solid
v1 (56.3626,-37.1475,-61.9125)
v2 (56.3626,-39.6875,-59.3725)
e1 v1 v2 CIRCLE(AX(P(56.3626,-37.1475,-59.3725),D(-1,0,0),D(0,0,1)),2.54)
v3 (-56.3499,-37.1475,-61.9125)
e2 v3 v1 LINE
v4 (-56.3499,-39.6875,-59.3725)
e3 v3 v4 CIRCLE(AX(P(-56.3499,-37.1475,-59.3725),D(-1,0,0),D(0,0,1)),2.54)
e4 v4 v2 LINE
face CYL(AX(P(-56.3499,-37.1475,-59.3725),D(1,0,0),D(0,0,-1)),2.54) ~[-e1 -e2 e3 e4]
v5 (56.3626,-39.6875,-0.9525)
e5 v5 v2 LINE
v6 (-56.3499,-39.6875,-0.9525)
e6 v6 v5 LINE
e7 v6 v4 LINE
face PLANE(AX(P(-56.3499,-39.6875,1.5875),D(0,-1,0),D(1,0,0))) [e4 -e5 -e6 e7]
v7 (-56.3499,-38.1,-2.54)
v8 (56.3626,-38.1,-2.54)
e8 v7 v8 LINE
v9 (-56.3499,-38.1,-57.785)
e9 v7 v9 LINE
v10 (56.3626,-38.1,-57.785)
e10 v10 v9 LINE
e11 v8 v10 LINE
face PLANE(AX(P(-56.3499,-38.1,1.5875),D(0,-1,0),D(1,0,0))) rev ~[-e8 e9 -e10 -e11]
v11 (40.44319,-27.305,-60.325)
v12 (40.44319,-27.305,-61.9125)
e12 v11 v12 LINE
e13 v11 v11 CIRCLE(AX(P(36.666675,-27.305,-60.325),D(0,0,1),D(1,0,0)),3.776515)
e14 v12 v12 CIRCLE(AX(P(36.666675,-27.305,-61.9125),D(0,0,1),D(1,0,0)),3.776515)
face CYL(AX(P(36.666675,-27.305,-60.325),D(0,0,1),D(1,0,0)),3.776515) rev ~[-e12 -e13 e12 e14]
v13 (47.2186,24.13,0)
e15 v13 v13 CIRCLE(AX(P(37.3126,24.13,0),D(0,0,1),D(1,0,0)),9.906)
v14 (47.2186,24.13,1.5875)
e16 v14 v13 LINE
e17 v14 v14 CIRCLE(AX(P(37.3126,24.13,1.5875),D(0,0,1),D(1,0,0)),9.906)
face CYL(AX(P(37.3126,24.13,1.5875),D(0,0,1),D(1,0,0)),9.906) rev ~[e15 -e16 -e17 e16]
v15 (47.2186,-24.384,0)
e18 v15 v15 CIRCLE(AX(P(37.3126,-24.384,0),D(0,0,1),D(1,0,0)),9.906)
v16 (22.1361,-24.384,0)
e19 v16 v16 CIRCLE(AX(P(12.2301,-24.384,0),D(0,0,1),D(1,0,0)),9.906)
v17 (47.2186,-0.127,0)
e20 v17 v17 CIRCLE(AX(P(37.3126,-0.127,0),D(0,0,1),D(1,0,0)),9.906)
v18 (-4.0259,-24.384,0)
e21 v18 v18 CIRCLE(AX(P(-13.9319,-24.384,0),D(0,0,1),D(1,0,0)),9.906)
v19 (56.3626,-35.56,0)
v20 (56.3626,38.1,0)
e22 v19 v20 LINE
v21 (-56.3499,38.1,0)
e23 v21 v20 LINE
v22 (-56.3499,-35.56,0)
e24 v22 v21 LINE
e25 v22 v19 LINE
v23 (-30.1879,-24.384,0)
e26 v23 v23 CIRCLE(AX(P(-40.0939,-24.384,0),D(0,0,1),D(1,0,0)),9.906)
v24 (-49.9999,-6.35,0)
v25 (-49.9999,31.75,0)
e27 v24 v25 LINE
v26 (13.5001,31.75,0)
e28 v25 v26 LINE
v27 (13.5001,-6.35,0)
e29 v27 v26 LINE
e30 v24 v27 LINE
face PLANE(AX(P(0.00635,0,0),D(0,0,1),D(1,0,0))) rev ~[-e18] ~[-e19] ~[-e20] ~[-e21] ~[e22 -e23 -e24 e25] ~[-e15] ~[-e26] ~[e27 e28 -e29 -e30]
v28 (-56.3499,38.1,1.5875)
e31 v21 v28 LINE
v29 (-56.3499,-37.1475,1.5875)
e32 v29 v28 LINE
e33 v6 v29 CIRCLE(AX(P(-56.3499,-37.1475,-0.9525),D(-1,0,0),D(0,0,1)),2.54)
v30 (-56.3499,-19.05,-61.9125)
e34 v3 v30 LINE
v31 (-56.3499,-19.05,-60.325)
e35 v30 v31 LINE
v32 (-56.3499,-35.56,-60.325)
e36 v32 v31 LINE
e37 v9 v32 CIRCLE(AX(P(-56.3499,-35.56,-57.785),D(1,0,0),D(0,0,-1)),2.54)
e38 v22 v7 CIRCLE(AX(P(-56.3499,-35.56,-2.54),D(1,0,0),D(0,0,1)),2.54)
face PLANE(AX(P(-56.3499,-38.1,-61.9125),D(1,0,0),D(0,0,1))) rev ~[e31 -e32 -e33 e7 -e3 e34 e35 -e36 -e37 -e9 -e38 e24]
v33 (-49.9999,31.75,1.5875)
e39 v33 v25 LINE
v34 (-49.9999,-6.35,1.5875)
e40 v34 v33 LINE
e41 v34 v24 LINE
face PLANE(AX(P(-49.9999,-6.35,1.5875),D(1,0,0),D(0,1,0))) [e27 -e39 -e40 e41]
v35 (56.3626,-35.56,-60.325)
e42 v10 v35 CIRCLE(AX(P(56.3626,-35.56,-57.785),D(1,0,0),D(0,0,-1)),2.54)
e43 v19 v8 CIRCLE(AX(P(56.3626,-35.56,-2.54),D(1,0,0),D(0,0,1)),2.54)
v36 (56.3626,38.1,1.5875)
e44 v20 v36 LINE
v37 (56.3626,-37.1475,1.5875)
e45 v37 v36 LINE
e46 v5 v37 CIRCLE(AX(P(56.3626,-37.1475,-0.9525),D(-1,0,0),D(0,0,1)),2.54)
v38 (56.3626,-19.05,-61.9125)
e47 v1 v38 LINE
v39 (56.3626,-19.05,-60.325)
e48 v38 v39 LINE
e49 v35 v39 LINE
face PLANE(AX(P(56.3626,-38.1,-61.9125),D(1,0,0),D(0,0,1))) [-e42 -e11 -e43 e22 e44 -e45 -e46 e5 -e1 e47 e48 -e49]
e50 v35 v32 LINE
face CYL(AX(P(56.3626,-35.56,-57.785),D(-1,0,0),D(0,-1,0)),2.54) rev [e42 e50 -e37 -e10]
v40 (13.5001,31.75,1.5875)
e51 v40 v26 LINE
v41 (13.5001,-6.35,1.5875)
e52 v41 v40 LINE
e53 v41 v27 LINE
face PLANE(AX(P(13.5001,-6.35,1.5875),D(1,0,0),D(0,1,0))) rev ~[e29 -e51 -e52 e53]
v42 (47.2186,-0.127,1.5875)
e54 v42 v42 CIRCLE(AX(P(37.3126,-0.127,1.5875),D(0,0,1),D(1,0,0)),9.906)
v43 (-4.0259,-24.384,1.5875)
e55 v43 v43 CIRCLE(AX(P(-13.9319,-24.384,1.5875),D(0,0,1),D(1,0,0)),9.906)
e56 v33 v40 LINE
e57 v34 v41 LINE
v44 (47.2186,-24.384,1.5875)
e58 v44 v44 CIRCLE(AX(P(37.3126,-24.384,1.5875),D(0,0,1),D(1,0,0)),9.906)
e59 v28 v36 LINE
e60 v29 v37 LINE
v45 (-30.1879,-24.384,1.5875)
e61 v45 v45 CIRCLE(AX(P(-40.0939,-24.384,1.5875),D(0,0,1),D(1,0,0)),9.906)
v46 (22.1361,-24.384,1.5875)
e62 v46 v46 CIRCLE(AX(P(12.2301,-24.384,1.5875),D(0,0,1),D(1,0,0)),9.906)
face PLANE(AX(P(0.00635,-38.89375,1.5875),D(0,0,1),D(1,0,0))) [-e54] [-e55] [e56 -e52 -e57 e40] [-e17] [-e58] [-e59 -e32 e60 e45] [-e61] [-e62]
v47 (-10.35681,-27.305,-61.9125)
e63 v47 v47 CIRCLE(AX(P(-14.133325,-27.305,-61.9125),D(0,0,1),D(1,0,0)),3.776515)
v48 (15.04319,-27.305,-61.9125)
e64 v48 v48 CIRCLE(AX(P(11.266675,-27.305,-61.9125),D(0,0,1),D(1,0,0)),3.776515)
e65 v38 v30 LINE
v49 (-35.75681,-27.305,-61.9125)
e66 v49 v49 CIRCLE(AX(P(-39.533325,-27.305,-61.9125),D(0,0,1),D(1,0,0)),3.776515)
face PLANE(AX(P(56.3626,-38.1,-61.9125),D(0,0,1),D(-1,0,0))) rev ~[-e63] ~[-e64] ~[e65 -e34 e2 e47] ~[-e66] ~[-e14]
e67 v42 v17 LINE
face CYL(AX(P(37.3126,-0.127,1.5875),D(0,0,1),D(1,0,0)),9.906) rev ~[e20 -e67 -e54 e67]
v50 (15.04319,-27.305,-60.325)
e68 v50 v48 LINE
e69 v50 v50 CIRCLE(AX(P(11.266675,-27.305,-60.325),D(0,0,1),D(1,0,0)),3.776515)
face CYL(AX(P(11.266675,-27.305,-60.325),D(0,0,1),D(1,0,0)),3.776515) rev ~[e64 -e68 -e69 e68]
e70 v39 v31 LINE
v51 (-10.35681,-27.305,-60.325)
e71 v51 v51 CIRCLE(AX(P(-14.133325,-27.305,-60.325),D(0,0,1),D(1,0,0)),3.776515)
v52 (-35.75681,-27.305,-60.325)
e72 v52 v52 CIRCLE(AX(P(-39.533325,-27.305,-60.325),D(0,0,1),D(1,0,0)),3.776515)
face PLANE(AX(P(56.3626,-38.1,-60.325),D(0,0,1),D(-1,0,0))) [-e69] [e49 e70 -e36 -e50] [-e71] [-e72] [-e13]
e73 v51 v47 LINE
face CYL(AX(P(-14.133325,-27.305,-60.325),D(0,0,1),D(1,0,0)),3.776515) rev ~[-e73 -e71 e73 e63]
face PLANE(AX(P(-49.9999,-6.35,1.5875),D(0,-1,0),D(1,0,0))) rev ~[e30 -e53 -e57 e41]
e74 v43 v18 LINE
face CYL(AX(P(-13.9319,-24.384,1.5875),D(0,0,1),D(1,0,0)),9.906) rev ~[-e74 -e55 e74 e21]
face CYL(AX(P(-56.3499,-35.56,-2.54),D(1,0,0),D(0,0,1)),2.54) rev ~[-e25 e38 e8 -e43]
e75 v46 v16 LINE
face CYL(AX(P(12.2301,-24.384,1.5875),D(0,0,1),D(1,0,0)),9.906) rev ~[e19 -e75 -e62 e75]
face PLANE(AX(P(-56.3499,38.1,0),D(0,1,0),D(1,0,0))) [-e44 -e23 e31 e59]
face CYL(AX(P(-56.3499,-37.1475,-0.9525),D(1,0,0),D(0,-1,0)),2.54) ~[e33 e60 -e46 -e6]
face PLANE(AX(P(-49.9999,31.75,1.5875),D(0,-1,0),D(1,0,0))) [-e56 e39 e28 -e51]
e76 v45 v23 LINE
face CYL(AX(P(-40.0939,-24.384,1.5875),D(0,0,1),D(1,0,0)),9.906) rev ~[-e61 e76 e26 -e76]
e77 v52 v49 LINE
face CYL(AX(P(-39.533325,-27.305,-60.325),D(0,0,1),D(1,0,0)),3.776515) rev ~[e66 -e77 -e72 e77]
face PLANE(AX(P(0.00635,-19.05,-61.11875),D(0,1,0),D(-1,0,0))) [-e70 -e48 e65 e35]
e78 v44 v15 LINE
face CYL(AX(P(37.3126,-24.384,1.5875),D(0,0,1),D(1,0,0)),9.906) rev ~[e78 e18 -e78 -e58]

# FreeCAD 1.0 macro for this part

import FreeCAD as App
import Part
import Sketcher
from FreeCAD import Vector
Q = App.Units.Quantity


def edges_at(feature, points):
    """Names of the edges that pass closest to the given points."""
    edges = feature.Shape.Edges
    near = lambda p: min(range(len(edges)), key=lambda i: edges[i].distToShape(Part.Vertex(*p))[0])
    return sorted({f"Edge{near(p) + 1}" for p in points})

doc = App.newDocument("Part")
body = doc.addObject("PartDesign::Body", "Body")

# Sketch on XY plane
sketch1 = body.newObject("Sketcher::SketchObject", "Sketch")
sketch1.AttachmentSupport = (doc.getObject("XY_Plane"), [""])
sketch1.MapMode = "FlatFace"
sketch1.addGeometry(Part.LineSegment(Vector(-56, 38, 0), Vector(-56, -38, 0)), False)
sketch1.addGeometry(Part.LineSegment(Vector(-56, -38, 0), Vector(56, -38, 0)), False)
sketch1.addGeometry(Part.LineSegment(Vector(56, -38, 0), Vector(56, 38, 0)), False)
sketch1.addGeometry(Part.LineSegment(Vector(56, 38, 0), Vector(-56, 38, 0)), False)
sketch1.addConstraint(Sketcher.Constraint("Coincident", 0, 2, 1, 1))
sketch1.addConstraint(Sketcher.Constraint("Coincident", 1, 2, 2, 1))
sketch1.addConstraint(Sketcher.Constraint("Coincident", 2, 2, 3, 1))
sketch1.addConstraint(Sketcher.Constraint("Coincident", 3, 2, 0, 1))
sketch1.addConstraint(Sketcher.Constraint("Vertical", 0))
sketch1.addConstraint(Sketcher.Constraint("Horizontal", 1))
sketch1.addConstraint(Sketcher.Constraint("Vertical", 2))
sketch1.addConstraint(Sketcher.Constraint("Horizontal", 3))
sketch1.addConstraint(Sketcher.Constraint("DistanceY", 0, 2, 0, 1, Q("3 in")))
sketch1.addConstraint(Sketcher.Constraint("DistanceY", 0, 2, -1, 1, Q("1.5 in")))
sketch1.addConstraint(Sketcher.Constraint("DistanceX", 1, 1, 1, 2, Q("4.4375 in")))
sketch1.addConstraint(Sketcher.Constraint("DistanceX", -1, 1, 1, 2, Q("2.219 in")))
pad1 = body.newObject("PartDesign::Pad", "Pad")
pad1.Profile = sketch1
pad1.Length = Q("0.0625 in")

# Sketch on XY plane
sketch2 = body.newObject("Sketcher::SketchObject", "Sketch001")
sketch2.AttachmentSupport = (doc.getObject("XY_Plane"), [""])
sketch2.MapMode = "FlatFace"
sketch2.AttachmentOffset = App.Placement(Vector(0, 0, 0.0625 * 25.4), App.Rotation())
sketch2.addGeometry(Part.LineSegment(Vector(-50, 32, 0), Vector(-50, -6, 0)), False)
sketch2.addGeometry(Part.LineSegment(Vector(-50, -6, 0), Vector(14, -6, 0)), False)
sketch2.addGeometry(Part.LineSegment(Vector(14, -6, 0), Vector(14, 32, 0)), False)
sketch2.addGeometry(Part.LineSegment(Vector(14, 32, 0), Vector(-50, 32, 0)), False)
sketch2.addGeometry(Part.Circle(Vector(37, 24, 0), Vector(0, 0, 1), 10), False)
sketch2.addGeometry(Part.Circle(Vector(37, 0, 0), Vector(0, 0, 1), 10), False)
sketch2.addGeometry(Part.Circle(Vector(37, -24, 0), Vector(0, 0, 1), 10), False)
sketch2.addGeometry(Part.Circle(Vector(-40, -24, 0), Vector(0, 0, 1), 10), False)
sketch2.addGeometry(Part.Circle(Vector(-14, -24, 0), Vector(0, 0, 1), 10), False)
sketch2.addGeometry(Part.Circle(Vector(12, -24, 0), Vector(0, 0, 1), 10), False)
sketch2.addConstraint(Sketcher.Constraint("Coincident", 0, 2, 1, 1))
sketch2.addConstraint(Sketcher.Constraint("Coincident", 1, 2, 2, 1))
sketch2.addConstraint(Sketcher.Constraint("Coincident", 2, 2, 3, 1))
sketch2.addConstraint(Sketcher.Constraint("Coincident", 3, 2, 0, 1))
sketch2.addConstraint(Sketcher.Constraint("Vertical", 0))
sketch2.addConstraint(Sketcher.Constraint("Horizontal", 1))
sketch2.addConstraint(Sketcher.Constraint("Vertical", 2))
sketch2.addConstraint(Sketcher.Constraint("Horizontal", 3))
sketch2.addConstraint(Sketcher.Constraint("Equal", 4, 5))
sketch2.addConstraint(Sketcher.Constraint("Equal", 5, 6))
sketch2.addConstraint(Sketcher.Constraint("Equal", 6, 7))
sketch2.addConstraint(Sketcher.Constraint("Equal", 7, 8))
sketch2.addConstraint(Sketcher.Constraint("Equal", 8, 9))
sketch2.addConstraint(Sketcher.Constraint("Horizontal", 6, 3, 7, 3))
sketch2.addConstraint(Sketcher.Constraint("Horizontal", 7, 3, 8, 3))
sketch2.addConstraint(Sketcher.Constraint("Horizontal", 8, 3, 9, 3))
sketch2.addConstraint(Sketcher.Constraint("Vertical", 4, 3, 5, 3))
sketch2.addConstraint(Sketcher.Constraint("Vertical", 5, 3, 6, 3))
sketch2.addConstraint(Sketcher.Constraint("Diameter", 4, Q("0.78 in")))
sketch2.addConstraint(Sketcher.Constraint("DistanceX", 1, 1, 1, 2, Q("2.5 in")))
sketch2.addConstraint(Sketcher.Constraint("DistanceY", 0, 2, 0, 1, Q("1.5 in")))
sketch2.addConstraint(Sketcher.Constraint("DistanceY", 1, 2, 4, 3, Q("1.2 in")))
sketch2.addConstraint(Sketcher.Constraint("DistanceY", -1, 1, 4, 3, Q("0.95 in")))
sketch2.addConstraint(Sketcher.Constraint("DistanceY", 6, 3, -1, 1, Q("0.96 in")))
sketch2.addConstraint(Sketcher.Constraint("DistanceX", 7, 3, 8, 3, Q("1.03 in")))
sketch2.addConstraint(Sketcher.Constraint("DistanceX", 8, 3, 9, 3, Q("1.03 in")))
sketch2.addConstraint(Sketcher.Constraint("DistanceX", 0, 2, 7, 3, Q("0.39 in")))
sketch2.addConstraint(Sketcher.Constraint("DistanceX", -1, 1, 4, 3, Q("1.469 in")))
sketch2.addConstraint(Sketcher.Constraint("DistanceY", 5, 3, -1, 1, Q("0.005 in")))
sketch2.addConstraint(Sketcher.Constraint("DistanceX", 0, 2, 5, 3, Q("3.4375 in")))
pocket1 = body.newObject("PartDesign::Pocket", "Pocket")
pocket1.Profile = sketch2
pocket1.Type = "ThroughAll"

# Sketch on XY plane
sketch3 = body.newObject("Sketcher::SketchObject", "Sketch002")
sketch3.AttachmentSupport = (doc.getObject("XY_Plane"), [""])
sketch3.MapMode = "FlatFace"
sketch3.AttachmentOffset = App.Placement(Vector(0, 0, 0.0625 * 25.4), App.Rotation())
sketch3.addGeometry(Part.LineSegment(Vector(-56.3, -38.1, 0), Vector(-56.3, -39.7, 0)), False)
sketch3.addGeometry(Part.LineSegment(Vector(-56.3, -39.7, 0), Vector(56.4, -39.7, 0)), False)
sketch3.addGeometry(Part.LineSegment(Vector(56.4, -39.7, 0), Vector(56.4, -38.1, 0)), False)
sketch3.addGeometry(Part.LineSegment(Vector(56.4, -38.1, 0), Vector(-56.3, -38.1, 0)), False)
sketch3.addConstraint(Sketcher.Constraint("Coincident", 0, 2, 1, 1))
sketch3.addConstraint(Sketcher.Constraint("Coincident", 1, 2, 2, 1))
sketch3.addConstraint(Sketcher.Constraint("Coincident", 2, 2, 3, 1))
sketch3.addConstraint(Sketcher.Constraint("Coincident", 3, 2, 0, 1))
sketch3.addConstraint(Sketcher.Constraint("Vertical", 0))
sketch3.addConstraint(Sketcher.Constraint("Horizontal", 1))
sketch3.addConstraint(Sketcher.Constraint("Vertical", 2))
sketch3.addConstraint(Sketcher.Constraint("Horizontal", 3))
sketch3.addConstraint(Sketcher.Constraint("DistanceY", 2, 2, -1, 1, Q("1.5 in")))
sketch3.addConstraint(Sketcher.Constraint("DistanceX", 1, 1, 1, 2, Q("4.4375 in")))
sketch3.addConstraint(Sketcher.Constraint("DistanceY", 0, 2, 0, 1, Q("0.0625 in")))
sketch3.addConstraint(Sketcher.Constraint("DistanceX", -1, 1, 1, 2, Q("2.219 in")))
pad2 = body.newObject("PartDesign::Pad", "Pad001")
pad2.Profile = sketch3
pad2.Length = Q("2.5 in")
pad2.Reversed = True

# Sketch on XZ plane
sketch4 = body.newObject("Sketcher::SketchObject", "Sketch003")
sketch4.AttachmentSupport = (doc.getObject("XZ_Plane"), [""])
sketch4.MapMode = "FlatFace"
sketch4.AttachmentOffset = App.Placement(Vector(0, 0, 1.5 * 25.4), App.Rotation())
sketch4.addGeometry(Part.LineSegment(Vector(56.4, -60.3, 0), Vector(56.4, -61.9, 0)), False)
sketch4.addGeometry(Part.LineSegment(Vector(56.4, -61.9, 0), Vector(-56.3, -61.9, 0)), False)
sketch4.addGeometry(Part.LineSegment(Vector(-56.3, -61.9, 0), Vector(-56.3, -60.3, 0)), False)
sketch4.addGeometry(Part.LineSegment(Vector(-56.3, -60.3, 0), Vector(56.4, -60.3, 0)), False)
sketch4.addConstraint(Sketcher.Constraint("Coincident", 0, 2, 1, 1))
sketch4.addConstraint(Sketcher.Constraint("Coincident", 1, 2, 2, 1))
sketch4.addConstraint(Sketcher.Constraint("Coincident", 2, 2, 3, 1))
sketch4.addConstraint(Sketcher.Constraint("Coincident", 3, 2, 0, 1))
sketch4.addConstraint(Sketcher.Constraint("Vertical", 0))
sketch4.addConstraint(Sketcher.Constraint("Horizontal", 1))
sketch4.addConstraint(Sketcher.Constraint("Vertical", 2))
sketch4.addConstraint(Sketcher.Constraint("Horizontal", 3))
sketch4.addConstraint(Sketcher.Constraint("DistanceX", 1, 2, 1, 1, Q("4.4375 in")))
sketch4.addConstraint(Sketcher.Constraint("DistanceY", 0, 2, 0, 1, Q("0.0625 in")))
sketch4.addConstraint(Sketcher.Constraint("DistanceX", -1, 1, 0, 2, Q("2.219 in")))
sketch4.addConstraint(Sketcher.Constraint("DistanceY", 0, 2, -1, 1, Q("2.4375 in")))
pad3 = body.newObject("PartDesign::Pad", "Pad002")
pad3.Profile = sketch4
pad3.Length = Q("0.75 in")
pad3.Reversed = True
doc.recompute()

fillet = body.newObject("PartDesign::Fillet", "Fillet")
fillet.Base = (pad3, edges_at(pad3, [
    (0.006, -39.688, 1.587),
    (0.006, -38.1, 0),
    (0.006, -39.688, -61.913),
    (0.006, -38.1, -60.325),
]))
fillet.Radius = Q("0.1 in")

# Sketch on XY plane
sketch5 = body.newObject("Sketcher::SketchObject", "Sketch004")
sketch5.AttachmentSupport = (doc.getObject("XY_Plane"), [""])
sketch5.MapMode = "FlatFace"
sketch5.AttachmentOffset = App.Placement(Vector(0, 0, -2.375 * 25.4), App.Rotation())
sketch5.addGeometry(Part.Circle(Vector(-39.5, -27.3, 0), Vector(0, 0, 1), 3.8), False)
sketch5.addGeometry(Part.Circle(Vector(-14.1, -27.3, 0), Vector(0, 0, 1), 3.8), False)
sketch5.addGeometry(Part.Circle(Vector(11.3, -27.3, 0), Vector(0, 0, 1), 3.8), False)
sketch5.addGeometry(Part.Circle(Vector(36.7, -27.3, 0), Vector(0, 0, 1), 3.8), False)
sketch5.addConstraint(Sketcher.Constraint("Equal", 0, 1))
sketch5.addConstraint(Sketcher.Constraint("Equal", 1, 2))
sketch5.addConstraint(Sketcher.Constraint("Equal", 2, 3))
sketch5.addConstraint(Sketcher.Constraint("Horizontal", 0, 3, 1, 3))
sketch5.addConstraint(Sketcher.Constraint("Horizontal", 1, 3, 2, 3))
sketch5.addConstraint(Sketcher.Constraint("Horizontal", 2, 3, 3, 3))
sketch5.addConstraint(Sketcher.Constraint("DistanceX", 0, 3, 1, 3, Q("1 in")))
sketch5.addConstraint(Sketcher.Constraint("DistanceX", 1, 3, 2, 3, Q("1 in")))
sketch5.addConstraint(Sketcher.Constraint("DistanceX", 2, 3, 3, 3, Q("1 in")))
sketch5.addConstraint(Sketcher.Constraint("Diameter", 0, 7.55303))
sketch5.addConstraint(Sketcher.Constraint("DistanceY", 0, 3, -1, 1, Q("1.075 in")))
sketch5.addConstraint(Sketcher.Constraint("DistanceX", 0, 3, -1, 1, 39.533325))
pocket2 = body.newObject("PartDesign::Pocket", "Pocket001")
pocket2.Profile = sketch5
pocket2.Type = "ThroughAll"

doc.recompute()
